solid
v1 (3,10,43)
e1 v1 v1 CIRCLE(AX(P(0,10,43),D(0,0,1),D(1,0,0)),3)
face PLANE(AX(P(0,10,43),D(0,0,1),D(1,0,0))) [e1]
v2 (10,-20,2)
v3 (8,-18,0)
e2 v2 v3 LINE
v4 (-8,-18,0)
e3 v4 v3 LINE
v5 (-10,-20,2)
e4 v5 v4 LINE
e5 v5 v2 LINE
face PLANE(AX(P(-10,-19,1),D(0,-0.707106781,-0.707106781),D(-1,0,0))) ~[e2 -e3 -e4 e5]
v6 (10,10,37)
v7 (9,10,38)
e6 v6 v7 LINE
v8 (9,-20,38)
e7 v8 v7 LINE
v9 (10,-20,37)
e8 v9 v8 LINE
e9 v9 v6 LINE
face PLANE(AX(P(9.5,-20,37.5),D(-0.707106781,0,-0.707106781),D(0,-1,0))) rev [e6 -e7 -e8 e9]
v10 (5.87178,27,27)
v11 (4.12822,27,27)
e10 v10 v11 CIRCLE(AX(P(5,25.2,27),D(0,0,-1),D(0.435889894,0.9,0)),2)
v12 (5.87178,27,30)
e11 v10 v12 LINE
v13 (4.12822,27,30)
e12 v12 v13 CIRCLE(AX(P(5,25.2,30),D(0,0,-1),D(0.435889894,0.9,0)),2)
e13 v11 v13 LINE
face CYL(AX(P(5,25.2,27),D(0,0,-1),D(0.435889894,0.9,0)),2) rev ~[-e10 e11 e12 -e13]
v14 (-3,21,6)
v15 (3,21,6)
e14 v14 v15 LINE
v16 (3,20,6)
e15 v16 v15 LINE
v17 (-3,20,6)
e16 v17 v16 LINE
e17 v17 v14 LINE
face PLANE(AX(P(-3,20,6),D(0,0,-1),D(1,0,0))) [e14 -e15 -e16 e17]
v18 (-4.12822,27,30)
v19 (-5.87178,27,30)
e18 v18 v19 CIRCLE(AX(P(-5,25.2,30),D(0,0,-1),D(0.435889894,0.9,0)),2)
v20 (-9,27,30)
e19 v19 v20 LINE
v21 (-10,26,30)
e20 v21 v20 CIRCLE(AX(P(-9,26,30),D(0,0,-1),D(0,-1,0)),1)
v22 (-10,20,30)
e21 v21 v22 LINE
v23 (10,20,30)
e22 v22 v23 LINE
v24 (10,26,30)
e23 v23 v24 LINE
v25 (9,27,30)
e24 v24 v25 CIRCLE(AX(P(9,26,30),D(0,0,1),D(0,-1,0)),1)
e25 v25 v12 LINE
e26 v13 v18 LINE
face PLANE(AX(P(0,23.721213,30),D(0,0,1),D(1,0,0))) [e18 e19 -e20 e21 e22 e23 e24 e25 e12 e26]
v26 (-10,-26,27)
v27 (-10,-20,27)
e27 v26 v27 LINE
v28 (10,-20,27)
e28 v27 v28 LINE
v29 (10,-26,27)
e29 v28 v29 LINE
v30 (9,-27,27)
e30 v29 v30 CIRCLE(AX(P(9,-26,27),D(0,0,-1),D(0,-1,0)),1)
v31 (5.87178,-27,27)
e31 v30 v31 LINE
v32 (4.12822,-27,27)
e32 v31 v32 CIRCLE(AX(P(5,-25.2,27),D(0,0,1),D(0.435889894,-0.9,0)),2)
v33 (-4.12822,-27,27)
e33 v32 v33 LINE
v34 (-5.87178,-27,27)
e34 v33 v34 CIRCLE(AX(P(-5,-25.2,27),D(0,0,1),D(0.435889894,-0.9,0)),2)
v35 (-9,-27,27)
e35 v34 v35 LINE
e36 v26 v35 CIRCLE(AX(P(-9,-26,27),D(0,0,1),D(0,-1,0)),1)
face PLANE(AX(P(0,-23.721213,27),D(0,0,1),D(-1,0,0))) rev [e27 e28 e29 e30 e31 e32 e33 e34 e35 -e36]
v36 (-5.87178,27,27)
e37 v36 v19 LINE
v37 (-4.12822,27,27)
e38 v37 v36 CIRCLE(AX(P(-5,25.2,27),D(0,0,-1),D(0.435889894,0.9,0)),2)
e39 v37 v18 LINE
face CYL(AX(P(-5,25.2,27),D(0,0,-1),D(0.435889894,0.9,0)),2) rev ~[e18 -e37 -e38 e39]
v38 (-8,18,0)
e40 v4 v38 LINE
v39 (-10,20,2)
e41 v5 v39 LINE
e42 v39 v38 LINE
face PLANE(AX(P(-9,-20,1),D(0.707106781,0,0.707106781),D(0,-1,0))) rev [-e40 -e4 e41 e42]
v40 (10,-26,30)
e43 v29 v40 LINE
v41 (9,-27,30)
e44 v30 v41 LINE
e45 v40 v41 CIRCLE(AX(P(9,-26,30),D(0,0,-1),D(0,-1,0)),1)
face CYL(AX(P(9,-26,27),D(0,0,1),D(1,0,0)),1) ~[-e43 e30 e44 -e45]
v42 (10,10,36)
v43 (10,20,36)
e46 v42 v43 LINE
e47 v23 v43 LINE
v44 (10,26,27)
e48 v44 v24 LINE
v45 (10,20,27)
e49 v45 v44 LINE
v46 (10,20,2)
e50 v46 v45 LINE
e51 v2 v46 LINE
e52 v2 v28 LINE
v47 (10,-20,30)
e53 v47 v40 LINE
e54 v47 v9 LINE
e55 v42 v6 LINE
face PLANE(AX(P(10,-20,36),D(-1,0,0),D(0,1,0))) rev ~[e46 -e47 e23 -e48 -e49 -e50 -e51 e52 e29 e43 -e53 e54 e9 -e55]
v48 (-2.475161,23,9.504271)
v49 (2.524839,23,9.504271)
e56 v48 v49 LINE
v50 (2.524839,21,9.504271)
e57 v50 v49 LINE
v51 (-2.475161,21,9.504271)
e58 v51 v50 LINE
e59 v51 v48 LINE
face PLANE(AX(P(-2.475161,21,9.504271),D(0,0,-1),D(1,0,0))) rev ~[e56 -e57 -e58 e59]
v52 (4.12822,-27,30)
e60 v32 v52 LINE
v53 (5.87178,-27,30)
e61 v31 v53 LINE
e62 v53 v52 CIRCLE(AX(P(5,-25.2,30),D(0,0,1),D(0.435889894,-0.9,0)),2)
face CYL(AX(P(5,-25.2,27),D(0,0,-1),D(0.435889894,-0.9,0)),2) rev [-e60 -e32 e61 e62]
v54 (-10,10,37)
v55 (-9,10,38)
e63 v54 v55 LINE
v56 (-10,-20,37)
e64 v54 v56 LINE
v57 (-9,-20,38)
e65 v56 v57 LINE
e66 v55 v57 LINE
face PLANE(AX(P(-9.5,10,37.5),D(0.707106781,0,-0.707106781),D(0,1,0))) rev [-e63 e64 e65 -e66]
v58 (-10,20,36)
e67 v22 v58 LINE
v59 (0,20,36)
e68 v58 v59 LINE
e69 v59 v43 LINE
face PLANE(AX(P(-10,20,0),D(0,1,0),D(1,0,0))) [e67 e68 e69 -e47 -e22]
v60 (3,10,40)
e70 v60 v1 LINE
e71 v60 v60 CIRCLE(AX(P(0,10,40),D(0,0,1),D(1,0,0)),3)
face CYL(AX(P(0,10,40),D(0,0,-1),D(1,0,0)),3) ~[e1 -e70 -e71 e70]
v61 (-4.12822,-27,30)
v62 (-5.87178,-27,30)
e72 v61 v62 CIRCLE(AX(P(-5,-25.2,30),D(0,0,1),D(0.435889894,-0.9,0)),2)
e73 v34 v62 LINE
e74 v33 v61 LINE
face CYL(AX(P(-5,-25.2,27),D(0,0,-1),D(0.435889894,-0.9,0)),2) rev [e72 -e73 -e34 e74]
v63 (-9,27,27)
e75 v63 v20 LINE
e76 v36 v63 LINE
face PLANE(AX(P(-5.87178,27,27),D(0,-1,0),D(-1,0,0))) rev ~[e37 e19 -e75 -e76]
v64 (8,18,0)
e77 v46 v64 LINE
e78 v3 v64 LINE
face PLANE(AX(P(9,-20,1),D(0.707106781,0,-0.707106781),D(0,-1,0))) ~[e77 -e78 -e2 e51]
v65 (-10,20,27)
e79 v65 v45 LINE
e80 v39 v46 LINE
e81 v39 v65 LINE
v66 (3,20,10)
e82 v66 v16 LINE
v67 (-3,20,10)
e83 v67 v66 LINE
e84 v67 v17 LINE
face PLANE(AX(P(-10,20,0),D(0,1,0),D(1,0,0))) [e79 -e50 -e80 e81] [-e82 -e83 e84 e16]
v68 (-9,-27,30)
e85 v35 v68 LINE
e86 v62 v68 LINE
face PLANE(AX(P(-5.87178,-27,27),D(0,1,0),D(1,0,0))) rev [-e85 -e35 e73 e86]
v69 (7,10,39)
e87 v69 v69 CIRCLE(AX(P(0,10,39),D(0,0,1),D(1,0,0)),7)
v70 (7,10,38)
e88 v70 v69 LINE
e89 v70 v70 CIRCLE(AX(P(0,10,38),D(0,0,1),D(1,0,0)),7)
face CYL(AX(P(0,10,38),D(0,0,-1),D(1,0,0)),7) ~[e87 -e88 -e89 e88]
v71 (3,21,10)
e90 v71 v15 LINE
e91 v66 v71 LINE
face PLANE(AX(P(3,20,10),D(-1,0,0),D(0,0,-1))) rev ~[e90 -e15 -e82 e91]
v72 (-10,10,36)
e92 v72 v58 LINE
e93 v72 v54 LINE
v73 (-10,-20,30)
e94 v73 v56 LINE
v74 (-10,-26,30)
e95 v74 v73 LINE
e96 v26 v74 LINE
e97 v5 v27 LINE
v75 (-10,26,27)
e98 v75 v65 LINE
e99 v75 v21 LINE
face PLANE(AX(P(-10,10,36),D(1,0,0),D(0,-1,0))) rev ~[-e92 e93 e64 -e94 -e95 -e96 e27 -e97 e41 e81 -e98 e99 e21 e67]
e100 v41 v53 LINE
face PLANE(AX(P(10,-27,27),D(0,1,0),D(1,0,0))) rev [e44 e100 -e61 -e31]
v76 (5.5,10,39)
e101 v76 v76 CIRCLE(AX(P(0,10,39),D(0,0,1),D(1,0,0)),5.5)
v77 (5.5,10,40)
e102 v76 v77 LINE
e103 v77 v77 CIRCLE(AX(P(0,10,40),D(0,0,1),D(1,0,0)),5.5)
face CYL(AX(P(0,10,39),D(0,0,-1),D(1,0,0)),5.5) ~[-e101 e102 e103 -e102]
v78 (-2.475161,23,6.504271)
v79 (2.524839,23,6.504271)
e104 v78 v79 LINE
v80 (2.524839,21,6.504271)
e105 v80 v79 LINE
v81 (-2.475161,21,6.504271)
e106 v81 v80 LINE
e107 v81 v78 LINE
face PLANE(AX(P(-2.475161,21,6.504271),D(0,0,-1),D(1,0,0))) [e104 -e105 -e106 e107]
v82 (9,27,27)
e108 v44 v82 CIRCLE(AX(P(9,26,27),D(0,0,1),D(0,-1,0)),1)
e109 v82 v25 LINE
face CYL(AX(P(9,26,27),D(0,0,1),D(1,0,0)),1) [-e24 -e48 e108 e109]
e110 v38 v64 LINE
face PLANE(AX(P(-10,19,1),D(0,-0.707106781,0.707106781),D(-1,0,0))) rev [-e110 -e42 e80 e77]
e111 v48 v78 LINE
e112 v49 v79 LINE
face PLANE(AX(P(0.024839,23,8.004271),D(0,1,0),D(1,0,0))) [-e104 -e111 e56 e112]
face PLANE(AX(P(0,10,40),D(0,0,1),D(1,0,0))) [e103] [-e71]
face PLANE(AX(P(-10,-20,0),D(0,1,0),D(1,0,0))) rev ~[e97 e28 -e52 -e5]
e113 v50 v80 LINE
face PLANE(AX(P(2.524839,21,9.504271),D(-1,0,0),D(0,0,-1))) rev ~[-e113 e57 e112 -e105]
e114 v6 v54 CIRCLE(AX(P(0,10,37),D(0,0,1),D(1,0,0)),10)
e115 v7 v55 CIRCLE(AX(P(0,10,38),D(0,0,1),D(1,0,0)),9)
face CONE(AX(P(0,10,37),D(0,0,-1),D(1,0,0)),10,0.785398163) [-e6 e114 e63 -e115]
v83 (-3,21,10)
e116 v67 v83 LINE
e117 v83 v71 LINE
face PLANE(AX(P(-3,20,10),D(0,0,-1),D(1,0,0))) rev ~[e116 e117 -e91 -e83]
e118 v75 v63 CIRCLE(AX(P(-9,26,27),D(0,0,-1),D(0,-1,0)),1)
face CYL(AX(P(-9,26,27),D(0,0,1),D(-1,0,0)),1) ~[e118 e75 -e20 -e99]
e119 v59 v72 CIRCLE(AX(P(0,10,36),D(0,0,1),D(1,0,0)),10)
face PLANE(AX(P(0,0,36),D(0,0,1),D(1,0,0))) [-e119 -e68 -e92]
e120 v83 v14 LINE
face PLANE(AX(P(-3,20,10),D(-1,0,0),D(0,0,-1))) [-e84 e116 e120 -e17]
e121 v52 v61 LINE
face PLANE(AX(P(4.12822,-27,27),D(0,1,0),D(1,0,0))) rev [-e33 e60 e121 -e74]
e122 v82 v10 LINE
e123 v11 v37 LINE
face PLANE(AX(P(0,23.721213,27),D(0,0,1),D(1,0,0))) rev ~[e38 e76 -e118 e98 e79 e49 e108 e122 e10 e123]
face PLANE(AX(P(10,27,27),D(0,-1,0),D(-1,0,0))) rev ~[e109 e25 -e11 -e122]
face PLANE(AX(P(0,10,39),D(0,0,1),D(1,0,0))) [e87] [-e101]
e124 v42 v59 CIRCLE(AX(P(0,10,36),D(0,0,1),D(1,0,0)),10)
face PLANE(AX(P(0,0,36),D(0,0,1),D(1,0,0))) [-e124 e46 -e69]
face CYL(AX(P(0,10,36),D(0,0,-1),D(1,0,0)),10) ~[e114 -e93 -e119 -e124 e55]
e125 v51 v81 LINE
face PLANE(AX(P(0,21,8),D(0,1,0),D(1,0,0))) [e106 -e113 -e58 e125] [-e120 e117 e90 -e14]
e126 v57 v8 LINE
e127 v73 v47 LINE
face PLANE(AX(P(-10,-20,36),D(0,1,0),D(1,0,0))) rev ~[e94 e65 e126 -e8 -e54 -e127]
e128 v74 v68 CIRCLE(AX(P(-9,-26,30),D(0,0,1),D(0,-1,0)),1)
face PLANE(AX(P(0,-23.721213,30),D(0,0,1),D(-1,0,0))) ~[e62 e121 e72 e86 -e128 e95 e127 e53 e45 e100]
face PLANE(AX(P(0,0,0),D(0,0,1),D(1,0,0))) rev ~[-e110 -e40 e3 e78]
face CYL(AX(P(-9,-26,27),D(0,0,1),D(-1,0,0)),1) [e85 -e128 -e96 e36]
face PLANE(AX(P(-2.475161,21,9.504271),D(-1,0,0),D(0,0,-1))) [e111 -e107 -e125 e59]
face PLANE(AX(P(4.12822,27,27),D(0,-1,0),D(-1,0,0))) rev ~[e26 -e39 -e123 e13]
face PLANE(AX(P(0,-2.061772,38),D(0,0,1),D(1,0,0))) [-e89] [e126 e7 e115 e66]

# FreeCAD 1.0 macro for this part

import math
import FreeCAD as App
import Part
import Sketcher
from FreeCAD import Vector


def edges_at(feature, points):
    """Names of the edges that pass closest to the given points."""
    edges = feature.Shape.Edges
    near = lambda p: min(range(len(edges)), key=lambda i: edges[i].distToShape(Part.Vertex(*p))[0])
    return sorted({f"Edge{near(p) + 1}" for p in points})


def add_polygon(sketch, points):
    """Adds a closed chain of lines whose ends are joined by coincident constraints."""
    first, n = sketch.GeometryCount, len(points)
    for a, b in zip(points, points[1:] + points[:1]):
        sketch.addGeometry(Part.LineSegment(App.Vector(*a, 0), App.Vector(*b, 0)), False)
    for i in range(n):
        sketch.addConstraint(Sketcher.Constraint("Coincident", first + i, 2, first + (i + 1) % n, 1))

doc = App.newDocument("Part")
body = doc.addObject("PartDesign::Body", "Body")

# Sketch on XY plane
sketch1 = doc.addObject("Sketcher::SketchObject", "Sketch")
body.addObject(sketch1)
sketch1.AttachmentSupport = (doc.XY_Plane, [""])
sketch1.MapMode = "FlatFace"
add_polygon(sketch1, [(-10, 20), (-10, -20), (10, -20), (10, 20)])  # lines 0-3
sketch1.addConstraint(Sketcher.Constraint("Vertical", 0))
sketch1.addConstraint(Sketcher.Constraint("Horizontal", 1))
sketch1.addConstraint(Sketcher.Constraint("Vertical", 2))
sketch1.addConstraint(Sketcher.Constraint("Horizontal", 3))
sketch1.addConstraint(Sketcher.Constraint("Symmetric", 0, 2, 2, 2, -1, 1))
sketch1.addConstraint(Sketcher.Constraint("DistanceX", 1, 1, 1, 2, 20.0))
sketch1.addConstraint(Sketcher.Constraint("DistanceY", 0, 2, 0, 1, 40.0))
pad1 = doc.addObject("PartDesign::Pad", "Pad")
body.addObject(pad1)
pad1.Profile = sketch1
pad1.Length = 36
doc.recompute()

chamfer = doc.addObject("PartDesign::Chamfer", "Chamfer")
body.addObject(chamfer)
chamfer.Base = (pad1, edges_at(pad1, [
    (0, -20, 0),
    (-10, 0, 0),
    (0, 20, 0),
    (10, 0, 0),
]))
chamfer.Size = 2

# Sketch on XY plane
sketch2 = doc.addObject("Sketcher::SketchObject", "Sketch001")
body.addObject(sketch2)
sketch2.AttachmentSupport = (doc.XY_Plane, [""])
sketch2.MapMode = "FlatFace"
sketch2.AttachmentOffset = App.Placement(Vector(0, 0, 27), App.Rotation())
sketch2.addGeometry(Part.LineSegment(Vector(-10, 20, 0), Vector(10, 20, 0)), False)
sketch2.addGeometry(Part.LineSegment(Vector(10, 20, 0), Vector(10, 27, 0)), False)
sketch2.addGeometry(Part.LineSegment(Vector(10, 27, 0), Vector(5.9, 27, 0)), False)
sketch2.addGeometry(Part.ArcOfCircle(Part.Circle(Vector(5, 25.2, 0), Vector(0, 0, 1), 2), math.radians(116), math.radians(424)), False)
sketch2.addGeometry(Part.LineSegment(Vector(4.1, 27, 0), Vector(-4.1, 27, 0)), False)
sketch2.addGeometry(Part.ArcOfCircle(Part.Circle(Vector(-5, 25.2, 0), Vector(0, 0, 1), 2), math.radians(116), math.radians(424)), False)
sketch2.addGeometry(Part.LineSegment(Vector(-5.9, 27, 0), Vector(-10, 27, 0)), False)
sketch2.addGeometry(Part.LineSegment(Vector(-10, 27, 0), Vector(-10, 20, 0)), False)
sketch2.addConstraint(Sketcher.Constraint("Coincident", 0, 2, 1, 1))
sketch2.addConstraint(Sketcher.Constraint("Coincident", 1, 2, 2, 1))
sketch2.addConstraint(Sketcher.Constraint("Coincident", 2, 2, 3, 2))
sketch2.addConstraint(Sketcher.Constraint("Coincident", 3, 1, 4, 1))
sketch2.addConstraint(Sketcher.Constraint("Coincident", 4, 2, 5, 2))
sketch2.addConstraint(Sketcher.Constraint("Coincident", 5, 1, 6, 1))
sketch2.addConstraint(Sketcher.Constraint("Coincident", 6, 2, 7, 1))
sketch2.addConstraint(Sketcher.Constraint("Coincident", 7, 2, 0, 1))
sketch2.addConstraint(Sketcher.Constraint("Horizontal", 0))
sketch2.addConstraint(Sketcher.Constraint("Vertical", 1))
sketch2.addConstraint(Sketcher.Constraint("Horizontal", 2))
sketch2.addConstraint(Sketcher.Constraint("Horizontal", 4))
sketch2.addConstraint(Sketcher.Constraint("Horizontal", 6))
sketch2.addConstraint(Sketcher.Constraint("Vertical", 7))
sketch2.addConstraint(Sketcher.Constraint("Equal", 3, 5))
sketch2.addConstraint(Sketcher.Constraint("Symmetric", 3, 3, 5, 3, -2))
sketch2.addConstraint(Sketcher.Constraint("Symmetric", 1, 2, 6, 2, -2))
sketch2.addConstraint(Sketcher.Constraint("Horizontal", 2, 2, 3, 1))
sketch2.addConstraint(Sketcher.Constraint("Radius", 3, 2.0))
sketch2.addConstraint(Sketcher.Constraint("DistanceX", 0, 1, 0, 2, 20.0))
sketch2.addConstraint(Sketcher.Constraint("DistanceY", 1, 1, 1, 2, 7.0))
sketch2.addConstraint(Sketcher.Constraint("DistanceX", -1, 1, 3, 3, 5.0))
sketch2.addConstraint(Sketcher.Constraint("DistanceY", -1, 1, 0, 2, 20.0))
sketch2.addConstraint(Sketcher.Constraint("DistanceY", -1, 1, 3, 3, 25.2))
pad2 = doc.addObject("PartDesign::Pad", "Pad001")
body.addObject(pad2)
pad2.Profile = sketch2
pad2.Length = 3
doc.recompute()

fillet = doc.addObject("PartDesign::Fillet", "Fillet")
body.addObject(fillet)
fillet.Base = (pad2, edges_at(pad2, [(10, 27, 28.5), (-10, 27, 28.5)]))
fillet.Radius = 1
doc.recompute()

mirrored = doc.addObject("PartDesign::Mirrored", "Mirrored")
body.addObject(mirrored)
mirrored.Originals = [pad2]
mirrored.MirrorPlane = (doc.XZ_Plane, [""])
body.Tip = mirrored
doc.recompute()

fillet2 = doc.addObject("PartDesign::Fillet", "Fillet001")
body.addObject(fillet2)
fillet2.Base = (mirrored, edges_at(mirrored, [(-10, -27, 28.5), (10, -27, 28.5)]))
fillet2.Radius = 1

# Sketch on XZ plane
sketch3 = doc.addObject("Sketcher::SketchObject", "Sketch002")
body.addObject(sketch3)
sketch3.AttachmentSupport = (doc.XZ_Plane, [""])
sketch3.MapMode = "FlatFace"
sketch3.AttachmentOffset = App.Placement(Vector(0, 0, -20), App.Rotation())
add_polygon(sketch3, [(-3, 6), (-3, 10), (3, 10), (3, 6)])  # lines 0-3
sketch3.addConstraint(Sketcher.Constraint("Vertical", 0))
sketch3.addConstraint(Sketcher.Constraint("Horizontal", 1))
sketch3.addConstraint(Sketcher.Constraint("Vertical", 2))
sketch3.addConstraint(Sketcher.Constraint("Horizontal", 3))
sketch3.addConstraint(Sketcher.Constraint("DistanceX", 1, 1, 1, 2, 6.0))
sketch3.addConstraint(Sketcher.Constraint("DistanceY", 0, 1, 0, 2, 4.0))
sketch3.addConstraint(Sketcher.Constraint("DistanceX", 0, 2, -1, 1, 3.0))
sketch3.addConstraint(Sketcher.Constraint("DistanceY", -1, 1, 0, 2, 10.0))
pad3 = doc.addObject("PartDesign::Pad", "Pad002")
body.addObject(pad3)
pad3.Profile = sketch3
pad3.Length = 1
pad3.Reversed = True

# Sketch on XZ plane
sketch4 = doc.addObject("Sketcher::SketchObject", "Sketch003")
body.addObject(sketch4)
sketch4.AttachmentSupport = (doc.XZ_Plane, [""])
sketch4.MapMode = "FlatFace"
sketch4.AttachmentOffset = App.Placement(Vector(0, 0, -21), App.Rotation())
add_polygon(sketch4, [(-2.5, 6.5), (-2.5, 9.5), (2.5, 9.5), (2.5, 6.5)])  # lines 0-3
sketch4.addConstraint(Sketcher.Constraint("Vertical", 0))
sketch4.addConstraint(Sketcher.Constraint("Horizontal", 1))
sketch4.addConstraint(Sketcher.Constraint("Vertical", 2))
sketch4.addConstraint(Sketcher.Constraint("Horizontal", 3))
sketch4.addConstraint(Sketcher.Constraint("DistanceX", 1, 1, 1, 2, 5.0))
sketch4.addConstraint(Sketcher.Constraint("DistanceY", 0, 1, 0, 2, 3.0))
sketch4.addConstraint(Sketcher.Constraint("DistanceX", 0, 2, -1, 1, 2.475161))
sketch4.addConstraint(Sketcher.Constraint("DistanceY", -1, 1, 0, 2, 9.504271))
pad4 = doc.addObject("PartDesign::Pad", "Pad003")
body.addObject(pad4)
pad4.Profile = sketch4
pad4.Length = 2
pad4.Reversed = True

# Sketch on XY plane
sketch5 = doc.addObject("Sketcher::SketchObject", "Sketch004")
body.addObject(sketch5)
sketch5.AttachmentSupport = (doc.XY_Plane, [""])
sketch5.MapMode = "FlatFace"
sketch5.AttachmentOffset = App.Placement(Vector(0, 0, 36), App.Rotation())
sketch5.addGeometry(Part.LineSegment(Vector(-10, 10, 0), Vector(-10, -20, 0)), False)
sketch5.addGeometry(Part.LineSegment(Vector(-10, -20, 0), Vector(10, -20, 0)), False)
sketch5.addGeometry(Part.LineSegment(Vector(10, -20, 0), Vector(10, 10, 0)), False)
sketch5.addGeometry(Part.ArcOfCircle(Part.Circle(Vector(0, 10, 0), Vector(0, 0, 1), 10), math.radians(0), math.radians(180)), False)
sketch5.addConstraint(Sketcher.Constraint("Coincident", 0, 2, 1, 1))
sketch5.addConstraint(Sketcher.Constraint("Coincident", 1, 2, 2, 1))
sketch5.addConstraint(Sketcher.Constraint("Tangent", 2, 2, 3, 1))
sketch5.addConstraint(Sketcher.Constraint("Tangent", 3, 2, 0, 1))
sketch5.addConstraint(Sketcher.Constraint("Vertical", 0))
sketch5.addConstraint(Sketcher.Constraint("Horizontal", 1))
sketch5.addConstraint(Sketcher.Constraint("Vertical", 2))
sketch5.addConstraint(Sketcher.Constraint("PointOnObject", 3, 3, -2))
sketch5.addConstraint(Sketcher.Constraint("Radius", 3, 10.0))
sketch5.addConstraint(Sketcher.Constraint("DistanceY", 0, 2, 0, 1, 30.0))
sketch5.addConstraint(Sketcher.Constraint("DistanceY", -1, 1, 3, 3, 10.0))
pad5 = doc.addObject("PartDesign::Pad", "Pad004")
body.addObject(pad5)
pad5.Profile = sketch5
pad5.Length = 2
doc.recompute()

chamfer2 = doc.addObject("PartDesign::Chamfer", "Chamfer001")
body.addObject(chamfer2)
chamfer2.Base = (pad5, edges_at(pad5, [(10, -5, 38), (0, 20, 38), (-10, -5, 38)]))
chamfer2.Size = 1

# Sketch on XY plane
sketch6 = doc.addObject("Sketcher::SketchObject", "Sketch005")
body.addObject(sketch6)
sketch6.AttachmentSupport = (doc.XY_Plane, [""])
sketch6.MapMode = "FlatFace"
sketch6.AttachmentOffset = App.Placement(Vector(0, 0, 38), App.Rotation())
sketch6.addGeometry(Part.Circle(Vector(0, 10, 0), Vector(0, 0, 1), 7), False)
sketch6.addConstraint(Sketcher.Constraint("PointOnObject", 0, 3, -2))
sketch6.addConstraint(Sketcher.Constraint("Diameter", 0, 14.0))
sketch6.addConstraint(Sketcher.Constraint("DistanceY", -1, 1, 0, 3, 10.0))
pad6 = doc.addObject("PartDesign::Pad", "Pad005")
body.addObject(pad6)
pad6.Profile = sketch6
pad6.Length = 1

# Sketch on XY plane
sketch7 = doc.addObject("Sketcher::SketchObject", "Sketch006")
body.addObject(sketch7)
sketch7.AttachmentSupport = (doc.XY_Plane, [""])
sketch7.MapMode = "FlatFace"
sketch7.AttachmentOffset = App.Placement(Vector(0, 0, 39), App.Rotation())
sketch7.addGeometry(Part.Circle(Vector(0, 10, 0), Vector(0, 0, 1), 6), False)
sketch7.addConstraint(Sketcher.Constraint("PointOnObject", 0, 3, -2))
sketch7.addConstraint(Sketcher.Constraint("Diameter", 0, 11.0))
sketch7.addConstraint(Sketcher.Constraint("DistanceY", -1, 1, 0, 3, 10.0))
pad7 = doc.addObject("PartDesign::Pad", "Pad006")
body.addObject(pad7)
pad7.Profile = sketch7
pad7.Length = 1

# Sketch on XY plane
sketch8 = doc.addObject("Sketcher::SketchObject", "Sketch007")
body.addObject(sketch8)
sketch8.AttachmentSupport = (doc.XY_Plane, [""])
sketch8.MapMode = "FlatFace"
sketch8.AttachmentOffset = App.Placement(Vector(0, 0, 40), App.Rotation())
sketch8.addGeometry(Part.Circle(Vector(0, 10, 0), Vector(0, 0, 1), 3), False)
sketch8.addConstraint(Sketcher.Constraint("PointOnObject", 0, 3, -2))
sketch8.addConstraint(Sketcher.Constraint("Diameter", 0, 6.0))
sketch8.addConstraint(Sketcher.Constraint("DistanceY", -1, 1, 0, 3, 10.0))
pad8 = doc.addObject("PartDesign::Pad", "Pad007")
body.addObject(pad8)
pad8.Profile = sketch8
pad8.Length = 3

doc.recompute()
